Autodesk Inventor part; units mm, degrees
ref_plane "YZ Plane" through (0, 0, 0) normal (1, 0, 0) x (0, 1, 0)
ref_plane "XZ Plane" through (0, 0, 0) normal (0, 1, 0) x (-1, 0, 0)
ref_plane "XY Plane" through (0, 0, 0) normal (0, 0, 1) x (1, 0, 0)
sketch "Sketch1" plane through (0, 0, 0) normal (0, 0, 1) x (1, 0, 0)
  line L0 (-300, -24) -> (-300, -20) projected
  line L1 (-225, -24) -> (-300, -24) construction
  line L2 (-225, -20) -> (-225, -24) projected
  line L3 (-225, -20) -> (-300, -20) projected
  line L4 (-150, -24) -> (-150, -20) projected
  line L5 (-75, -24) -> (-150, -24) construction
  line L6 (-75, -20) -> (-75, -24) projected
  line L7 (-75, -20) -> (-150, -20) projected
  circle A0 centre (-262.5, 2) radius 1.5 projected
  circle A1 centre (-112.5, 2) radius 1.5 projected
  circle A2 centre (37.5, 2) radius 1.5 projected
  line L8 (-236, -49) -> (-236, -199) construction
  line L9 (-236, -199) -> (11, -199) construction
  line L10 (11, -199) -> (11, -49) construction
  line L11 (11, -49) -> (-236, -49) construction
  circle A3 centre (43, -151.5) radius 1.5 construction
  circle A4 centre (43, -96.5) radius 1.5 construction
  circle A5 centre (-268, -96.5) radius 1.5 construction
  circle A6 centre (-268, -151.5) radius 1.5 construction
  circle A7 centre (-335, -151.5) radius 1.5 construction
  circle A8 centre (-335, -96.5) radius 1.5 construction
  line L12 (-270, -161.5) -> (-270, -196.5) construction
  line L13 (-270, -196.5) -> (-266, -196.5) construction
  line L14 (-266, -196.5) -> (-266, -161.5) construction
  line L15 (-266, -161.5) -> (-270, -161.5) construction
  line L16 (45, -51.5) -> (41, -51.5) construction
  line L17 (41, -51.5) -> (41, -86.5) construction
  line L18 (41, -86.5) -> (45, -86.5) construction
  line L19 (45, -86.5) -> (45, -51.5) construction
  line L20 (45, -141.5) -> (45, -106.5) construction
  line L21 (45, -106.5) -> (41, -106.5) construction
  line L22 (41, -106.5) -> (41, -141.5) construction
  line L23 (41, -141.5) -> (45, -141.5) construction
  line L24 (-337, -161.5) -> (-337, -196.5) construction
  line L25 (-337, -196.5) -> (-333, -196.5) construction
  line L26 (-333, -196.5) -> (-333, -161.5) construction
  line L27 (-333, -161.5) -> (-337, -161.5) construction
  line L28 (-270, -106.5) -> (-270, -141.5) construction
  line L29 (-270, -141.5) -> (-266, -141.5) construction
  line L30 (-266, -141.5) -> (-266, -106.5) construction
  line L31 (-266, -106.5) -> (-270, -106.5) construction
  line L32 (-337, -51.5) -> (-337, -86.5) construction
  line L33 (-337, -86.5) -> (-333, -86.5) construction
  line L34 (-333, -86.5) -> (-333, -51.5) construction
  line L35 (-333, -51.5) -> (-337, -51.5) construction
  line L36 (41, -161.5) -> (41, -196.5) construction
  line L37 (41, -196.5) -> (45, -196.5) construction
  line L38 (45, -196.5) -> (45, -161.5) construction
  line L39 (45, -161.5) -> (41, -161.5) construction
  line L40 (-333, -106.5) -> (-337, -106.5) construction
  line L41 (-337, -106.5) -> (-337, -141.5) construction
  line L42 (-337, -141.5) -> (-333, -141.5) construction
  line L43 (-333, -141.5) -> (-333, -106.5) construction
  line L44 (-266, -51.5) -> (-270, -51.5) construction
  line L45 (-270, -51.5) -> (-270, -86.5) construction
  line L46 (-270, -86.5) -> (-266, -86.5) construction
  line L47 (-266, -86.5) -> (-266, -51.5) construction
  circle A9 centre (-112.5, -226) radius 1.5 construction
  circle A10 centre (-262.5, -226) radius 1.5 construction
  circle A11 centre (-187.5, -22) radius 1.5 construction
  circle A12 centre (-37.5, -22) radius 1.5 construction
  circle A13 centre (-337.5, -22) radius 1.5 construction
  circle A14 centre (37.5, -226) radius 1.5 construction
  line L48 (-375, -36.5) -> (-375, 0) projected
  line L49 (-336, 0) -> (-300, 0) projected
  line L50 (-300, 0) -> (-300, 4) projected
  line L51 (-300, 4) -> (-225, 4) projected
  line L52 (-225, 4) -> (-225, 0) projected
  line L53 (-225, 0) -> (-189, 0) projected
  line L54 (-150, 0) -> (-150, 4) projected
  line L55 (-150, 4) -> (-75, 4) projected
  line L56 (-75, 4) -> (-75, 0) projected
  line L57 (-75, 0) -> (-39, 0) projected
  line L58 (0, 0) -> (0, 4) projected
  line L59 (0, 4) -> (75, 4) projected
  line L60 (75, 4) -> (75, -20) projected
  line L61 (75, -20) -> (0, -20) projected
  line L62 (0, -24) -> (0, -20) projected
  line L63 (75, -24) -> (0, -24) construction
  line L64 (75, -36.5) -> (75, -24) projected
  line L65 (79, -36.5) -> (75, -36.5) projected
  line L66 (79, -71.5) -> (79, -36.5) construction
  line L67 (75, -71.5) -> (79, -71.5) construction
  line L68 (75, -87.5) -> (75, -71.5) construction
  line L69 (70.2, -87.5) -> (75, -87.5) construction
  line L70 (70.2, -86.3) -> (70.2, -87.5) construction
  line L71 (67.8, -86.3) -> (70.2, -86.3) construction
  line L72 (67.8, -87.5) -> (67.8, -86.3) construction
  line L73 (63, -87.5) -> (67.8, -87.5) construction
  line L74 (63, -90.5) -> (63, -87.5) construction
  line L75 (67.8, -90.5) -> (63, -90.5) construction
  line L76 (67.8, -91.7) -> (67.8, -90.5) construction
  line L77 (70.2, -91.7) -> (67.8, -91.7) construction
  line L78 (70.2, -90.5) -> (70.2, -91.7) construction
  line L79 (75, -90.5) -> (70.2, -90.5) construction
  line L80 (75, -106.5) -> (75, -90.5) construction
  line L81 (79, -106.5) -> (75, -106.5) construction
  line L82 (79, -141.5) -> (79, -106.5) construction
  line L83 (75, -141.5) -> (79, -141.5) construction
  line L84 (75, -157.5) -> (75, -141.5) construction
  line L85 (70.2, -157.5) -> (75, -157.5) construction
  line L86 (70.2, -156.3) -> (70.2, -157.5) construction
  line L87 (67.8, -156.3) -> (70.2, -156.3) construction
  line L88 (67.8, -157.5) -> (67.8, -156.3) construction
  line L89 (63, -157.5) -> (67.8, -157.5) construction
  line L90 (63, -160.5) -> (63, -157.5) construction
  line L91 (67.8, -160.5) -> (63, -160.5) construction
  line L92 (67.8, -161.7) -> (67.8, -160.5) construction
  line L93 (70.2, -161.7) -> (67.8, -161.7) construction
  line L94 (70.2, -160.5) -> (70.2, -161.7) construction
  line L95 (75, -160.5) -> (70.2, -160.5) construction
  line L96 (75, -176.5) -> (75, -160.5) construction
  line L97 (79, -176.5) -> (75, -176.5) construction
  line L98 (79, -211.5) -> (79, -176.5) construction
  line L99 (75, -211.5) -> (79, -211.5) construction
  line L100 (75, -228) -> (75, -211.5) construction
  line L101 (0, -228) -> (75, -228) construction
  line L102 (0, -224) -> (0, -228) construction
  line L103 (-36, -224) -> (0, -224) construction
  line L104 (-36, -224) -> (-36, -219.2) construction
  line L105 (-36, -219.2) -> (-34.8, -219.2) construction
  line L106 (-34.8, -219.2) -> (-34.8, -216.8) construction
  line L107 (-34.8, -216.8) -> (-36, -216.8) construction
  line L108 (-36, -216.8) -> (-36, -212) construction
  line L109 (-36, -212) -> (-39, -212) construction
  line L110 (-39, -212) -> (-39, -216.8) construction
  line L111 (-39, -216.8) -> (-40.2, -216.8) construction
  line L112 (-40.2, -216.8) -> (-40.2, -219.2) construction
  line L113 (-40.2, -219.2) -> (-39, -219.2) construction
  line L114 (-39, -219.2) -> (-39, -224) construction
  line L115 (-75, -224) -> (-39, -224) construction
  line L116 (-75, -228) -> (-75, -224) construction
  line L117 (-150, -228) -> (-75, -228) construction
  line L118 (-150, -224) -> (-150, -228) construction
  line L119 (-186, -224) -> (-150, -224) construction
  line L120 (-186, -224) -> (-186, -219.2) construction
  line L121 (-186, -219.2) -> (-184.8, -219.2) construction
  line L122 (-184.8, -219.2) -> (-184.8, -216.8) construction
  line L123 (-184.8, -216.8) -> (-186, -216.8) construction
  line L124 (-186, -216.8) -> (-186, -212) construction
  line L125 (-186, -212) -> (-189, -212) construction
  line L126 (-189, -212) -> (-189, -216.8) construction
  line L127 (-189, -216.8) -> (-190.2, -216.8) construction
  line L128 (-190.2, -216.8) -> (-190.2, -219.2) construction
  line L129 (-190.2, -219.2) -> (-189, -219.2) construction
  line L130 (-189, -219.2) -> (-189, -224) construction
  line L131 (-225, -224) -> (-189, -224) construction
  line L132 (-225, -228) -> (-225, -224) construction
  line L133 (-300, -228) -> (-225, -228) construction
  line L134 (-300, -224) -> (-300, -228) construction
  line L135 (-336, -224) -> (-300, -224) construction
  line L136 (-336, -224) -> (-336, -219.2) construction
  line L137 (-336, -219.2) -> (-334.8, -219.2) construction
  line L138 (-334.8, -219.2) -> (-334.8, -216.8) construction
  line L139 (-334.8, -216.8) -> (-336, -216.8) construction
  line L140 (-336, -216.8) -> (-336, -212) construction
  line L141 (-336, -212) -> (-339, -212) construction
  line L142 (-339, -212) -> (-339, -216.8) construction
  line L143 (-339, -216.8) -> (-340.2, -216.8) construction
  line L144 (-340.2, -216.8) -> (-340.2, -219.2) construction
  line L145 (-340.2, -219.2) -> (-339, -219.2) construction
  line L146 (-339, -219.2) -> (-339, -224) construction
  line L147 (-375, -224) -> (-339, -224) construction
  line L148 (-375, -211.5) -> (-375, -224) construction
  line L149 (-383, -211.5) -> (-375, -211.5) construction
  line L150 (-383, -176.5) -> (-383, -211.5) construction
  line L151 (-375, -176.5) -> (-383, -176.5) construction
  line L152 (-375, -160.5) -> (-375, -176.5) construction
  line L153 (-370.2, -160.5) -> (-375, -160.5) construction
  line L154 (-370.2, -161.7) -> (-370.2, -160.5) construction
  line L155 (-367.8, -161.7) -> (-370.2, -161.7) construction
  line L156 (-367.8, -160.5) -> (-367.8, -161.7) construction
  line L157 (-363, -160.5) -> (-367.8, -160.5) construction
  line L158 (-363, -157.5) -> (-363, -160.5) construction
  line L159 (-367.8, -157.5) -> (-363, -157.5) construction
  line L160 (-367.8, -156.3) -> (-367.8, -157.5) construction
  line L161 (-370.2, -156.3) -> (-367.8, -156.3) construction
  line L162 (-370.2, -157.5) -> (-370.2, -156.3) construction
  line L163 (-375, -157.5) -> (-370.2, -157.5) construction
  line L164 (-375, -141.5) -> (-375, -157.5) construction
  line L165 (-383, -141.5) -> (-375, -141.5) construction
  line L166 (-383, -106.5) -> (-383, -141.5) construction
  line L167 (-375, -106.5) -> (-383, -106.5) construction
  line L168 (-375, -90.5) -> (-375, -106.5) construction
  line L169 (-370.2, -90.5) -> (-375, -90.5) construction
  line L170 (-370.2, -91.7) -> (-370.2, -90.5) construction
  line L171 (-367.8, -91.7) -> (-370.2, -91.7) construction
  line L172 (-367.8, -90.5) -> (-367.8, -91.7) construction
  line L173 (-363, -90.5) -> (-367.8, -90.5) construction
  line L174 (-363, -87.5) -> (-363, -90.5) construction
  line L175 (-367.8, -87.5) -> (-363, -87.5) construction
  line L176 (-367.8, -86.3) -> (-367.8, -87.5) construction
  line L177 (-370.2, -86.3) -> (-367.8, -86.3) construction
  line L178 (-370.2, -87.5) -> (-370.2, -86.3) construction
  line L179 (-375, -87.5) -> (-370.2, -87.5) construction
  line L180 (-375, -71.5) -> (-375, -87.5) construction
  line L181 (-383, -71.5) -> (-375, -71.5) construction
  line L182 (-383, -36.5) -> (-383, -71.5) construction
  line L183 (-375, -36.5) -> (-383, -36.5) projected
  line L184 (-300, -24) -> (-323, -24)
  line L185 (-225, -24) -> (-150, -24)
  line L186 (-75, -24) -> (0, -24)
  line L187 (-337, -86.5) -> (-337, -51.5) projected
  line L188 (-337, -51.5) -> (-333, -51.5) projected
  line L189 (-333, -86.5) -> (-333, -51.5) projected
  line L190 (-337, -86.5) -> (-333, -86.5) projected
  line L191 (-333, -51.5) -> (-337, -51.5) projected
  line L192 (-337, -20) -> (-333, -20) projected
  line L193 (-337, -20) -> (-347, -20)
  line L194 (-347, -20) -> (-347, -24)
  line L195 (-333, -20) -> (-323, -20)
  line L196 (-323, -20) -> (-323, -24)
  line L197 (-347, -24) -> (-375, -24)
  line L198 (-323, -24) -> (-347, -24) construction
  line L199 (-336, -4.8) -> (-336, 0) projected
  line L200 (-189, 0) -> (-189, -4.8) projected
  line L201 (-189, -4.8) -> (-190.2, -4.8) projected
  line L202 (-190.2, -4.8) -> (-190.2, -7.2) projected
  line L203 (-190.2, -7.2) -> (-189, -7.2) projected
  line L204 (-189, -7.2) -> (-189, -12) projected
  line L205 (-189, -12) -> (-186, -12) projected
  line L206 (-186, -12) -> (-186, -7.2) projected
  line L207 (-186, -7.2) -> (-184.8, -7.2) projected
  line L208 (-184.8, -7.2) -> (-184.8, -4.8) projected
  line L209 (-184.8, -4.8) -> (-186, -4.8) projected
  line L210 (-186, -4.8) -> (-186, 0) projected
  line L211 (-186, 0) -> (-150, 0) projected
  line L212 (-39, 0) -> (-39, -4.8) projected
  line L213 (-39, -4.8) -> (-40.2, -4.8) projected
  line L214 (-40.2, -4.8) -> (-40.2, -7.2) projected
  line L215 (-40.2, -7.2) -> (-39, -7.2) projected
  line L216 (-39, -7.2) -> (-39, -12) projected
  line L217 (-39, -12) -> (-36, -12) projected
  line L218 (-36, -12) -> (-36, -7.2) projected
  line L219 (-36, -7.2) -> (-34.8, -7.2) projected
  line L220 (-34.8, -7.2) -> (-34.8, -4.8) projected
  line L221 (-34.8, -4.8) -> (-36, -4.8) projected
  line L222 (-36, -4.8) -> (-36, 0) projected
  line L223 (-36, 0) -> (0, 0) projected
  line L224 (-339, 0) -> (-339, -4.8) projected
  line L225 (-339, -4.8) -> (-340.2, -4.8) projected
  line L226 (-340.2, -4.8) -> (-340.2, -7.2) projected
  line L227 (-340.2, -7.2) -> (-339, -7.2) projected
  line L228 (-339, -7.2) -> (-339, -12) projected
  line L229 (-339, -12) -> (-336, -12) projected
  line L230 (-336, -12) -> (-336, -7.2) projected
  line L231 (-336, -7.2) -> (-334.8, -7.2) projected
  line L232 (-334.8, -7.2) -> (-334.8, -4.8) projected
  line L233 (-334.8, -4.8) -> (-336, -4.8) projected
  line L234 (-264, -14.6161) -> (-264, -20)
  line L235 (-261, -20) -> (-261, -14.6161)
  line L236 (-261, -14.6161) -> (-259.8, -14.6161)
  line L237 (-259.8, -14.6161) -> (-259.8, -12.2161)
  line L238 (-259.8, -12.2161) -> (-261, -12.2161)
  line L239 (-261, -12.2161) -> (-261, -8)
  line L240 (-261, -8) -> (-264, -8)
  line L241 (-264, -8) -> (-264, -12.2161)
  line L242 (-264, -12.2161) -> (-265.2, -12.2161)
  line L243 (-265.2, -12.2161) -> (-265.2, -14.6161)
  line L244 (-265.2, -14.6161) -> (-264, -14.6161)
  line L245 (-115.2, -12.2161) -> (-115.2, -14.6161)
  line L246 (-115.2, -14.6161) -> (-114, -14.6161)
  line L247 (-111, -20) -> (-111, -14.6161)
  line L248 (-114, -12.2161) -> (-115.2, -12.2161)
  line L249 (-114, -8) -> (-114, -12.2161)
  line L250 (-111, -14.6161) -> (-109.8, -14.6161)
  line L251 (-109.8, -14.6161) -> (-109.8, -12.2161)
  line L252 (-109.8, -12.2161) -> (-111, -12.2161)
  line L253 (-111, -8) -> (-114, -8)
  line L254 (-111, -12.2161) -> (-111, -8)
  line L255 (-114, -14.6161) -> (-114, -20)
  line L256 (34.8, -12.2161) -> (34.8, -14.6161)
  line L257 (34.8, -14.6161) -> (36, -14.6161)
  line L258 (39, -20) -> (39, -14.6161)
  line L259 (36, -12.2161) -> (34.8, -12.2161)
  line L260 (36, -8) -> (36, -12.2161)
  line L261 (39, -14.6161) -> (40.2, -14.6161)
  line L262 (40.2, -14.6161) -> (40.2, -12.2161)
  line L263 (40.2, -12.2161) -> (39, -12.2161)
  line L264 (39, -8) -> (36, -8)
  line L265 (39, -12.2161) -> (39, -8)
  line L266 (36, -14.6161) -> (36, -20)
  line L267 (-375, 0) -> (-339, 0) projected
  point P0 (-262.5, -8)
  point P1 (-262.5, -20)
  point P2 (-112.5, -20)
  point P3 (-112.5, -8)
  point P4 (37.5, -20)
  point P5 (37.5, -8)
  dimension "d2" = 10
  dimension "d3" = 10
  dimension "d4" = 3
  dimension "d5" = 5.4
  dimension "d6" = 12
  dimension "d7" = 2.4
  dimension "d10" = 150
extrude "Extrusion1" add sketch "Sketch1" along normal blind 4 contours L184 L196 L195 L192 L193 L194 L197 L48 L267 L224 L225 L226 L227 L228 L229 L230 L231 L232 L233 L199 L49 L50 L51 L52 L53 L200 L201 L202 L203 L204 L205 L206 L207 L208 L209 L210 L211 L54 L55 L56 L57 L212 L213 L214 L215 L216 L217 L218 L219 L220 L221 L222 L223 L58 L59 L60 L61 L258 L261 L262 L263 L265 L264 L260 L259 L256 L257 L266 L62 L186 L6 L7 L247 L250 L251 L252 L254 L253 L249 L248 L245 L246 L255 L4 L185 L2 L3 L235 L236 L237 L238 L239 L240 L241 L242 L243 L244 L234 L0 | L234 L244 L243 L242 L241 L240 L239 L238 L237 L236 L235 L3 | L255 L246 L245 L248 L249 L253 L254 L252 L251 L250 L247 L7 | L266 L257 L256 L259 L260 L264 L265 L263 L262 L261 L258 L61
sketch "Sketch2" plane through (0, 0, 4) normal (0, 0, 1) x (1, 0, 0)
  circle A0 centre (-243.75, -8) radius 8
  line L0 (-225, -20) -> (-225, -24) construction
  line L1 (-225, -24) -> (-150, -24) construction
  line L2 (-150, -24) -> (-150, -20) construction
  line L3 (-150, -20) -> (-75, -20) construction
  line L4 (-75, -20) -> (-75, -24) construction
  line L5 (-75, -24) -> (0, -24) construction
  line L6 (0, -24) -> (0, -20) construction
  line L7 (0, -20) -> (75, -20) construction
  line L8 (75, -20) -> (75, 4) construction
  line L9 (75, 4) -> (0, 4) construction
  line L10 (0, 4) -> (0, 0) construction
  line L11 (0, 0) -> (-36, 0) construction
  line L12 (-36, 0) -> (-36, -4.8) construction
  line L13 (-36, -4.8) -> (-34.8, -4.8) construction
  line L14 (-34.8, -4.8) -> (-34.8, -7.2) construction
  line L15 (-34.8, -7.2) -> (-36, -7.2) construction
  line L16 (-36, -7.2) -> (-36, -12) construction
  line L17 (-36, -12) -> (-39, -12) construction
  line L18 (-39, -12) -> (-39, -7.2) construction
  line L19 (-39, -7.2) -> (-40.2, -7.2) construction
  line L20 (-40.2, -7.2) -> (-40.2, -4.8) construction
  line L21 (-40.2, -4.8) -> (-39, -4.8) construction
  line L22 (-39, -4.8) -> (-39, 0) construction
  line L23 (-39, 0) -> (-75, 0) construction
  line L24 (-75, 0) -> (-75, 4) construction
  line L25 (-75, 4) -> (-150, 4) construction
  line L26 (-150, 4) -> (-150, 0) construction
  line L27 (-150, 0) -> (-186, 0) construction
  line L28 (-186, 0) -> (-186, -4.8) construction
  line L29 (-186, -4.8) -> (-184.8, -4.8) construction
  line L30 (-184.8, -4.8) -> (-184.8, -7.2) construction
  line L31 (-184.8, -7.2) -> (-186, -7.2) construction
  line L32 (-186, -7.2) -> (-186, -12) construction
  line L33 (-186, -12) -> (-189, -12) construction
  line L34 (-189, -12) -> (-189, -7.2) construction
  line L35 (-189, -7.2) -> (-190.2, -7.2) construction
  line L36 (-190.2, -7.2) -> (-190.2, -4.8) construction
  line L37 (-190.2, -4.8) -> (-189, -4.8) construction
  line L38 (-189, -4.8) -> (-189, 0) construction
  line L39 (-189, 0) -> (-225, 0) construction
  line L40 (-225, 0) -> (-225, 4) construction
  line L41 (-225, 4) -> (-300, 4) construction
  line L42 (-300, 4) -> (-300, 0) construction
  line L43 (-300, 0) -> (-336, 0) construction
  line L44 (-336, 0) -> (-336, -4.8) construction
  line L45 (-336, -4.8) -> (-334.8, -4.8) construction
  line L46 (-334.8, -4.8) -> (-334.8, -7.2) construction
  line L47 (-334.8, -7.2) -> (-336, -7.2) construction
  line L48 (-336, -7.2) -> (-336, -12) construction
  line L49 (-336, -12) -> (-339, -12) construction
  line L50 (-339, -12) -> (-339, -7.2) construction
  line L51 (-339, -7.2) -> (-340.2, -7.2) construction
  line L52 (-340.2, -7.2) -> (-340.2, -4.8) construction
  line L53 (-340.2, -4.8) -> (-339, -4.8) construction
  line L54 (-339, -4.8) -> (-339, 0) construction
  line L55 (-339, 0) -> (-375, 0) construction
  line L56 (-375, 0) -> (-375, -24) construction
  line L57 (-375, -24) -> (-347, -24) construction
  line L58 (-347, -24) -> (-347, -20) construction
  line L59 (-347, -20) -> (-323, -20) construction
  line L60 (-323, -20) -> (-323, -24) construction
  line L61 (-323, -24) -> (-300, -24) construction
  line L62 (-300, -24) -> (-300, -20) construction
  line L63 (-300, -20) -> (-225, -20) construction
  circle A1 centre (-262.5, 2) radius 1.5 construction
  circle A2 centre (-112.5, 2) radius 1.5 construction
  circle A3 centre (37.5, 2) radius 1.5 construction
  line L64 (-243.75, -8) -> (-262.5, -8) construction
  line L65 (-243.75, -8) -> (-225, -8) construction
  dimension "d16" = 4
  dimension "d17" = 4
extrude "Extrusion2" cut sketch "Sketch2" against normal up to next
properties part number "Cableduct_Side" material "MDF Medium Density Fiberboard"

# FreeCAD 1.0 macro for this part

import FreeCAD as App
import Part
import Sketcher

V = App.Vector
Q = App.Units.Quantity

doc = App.newDocument("Part")
body = doc.addObject("PartDesign::Body", "Body")

# Sketch on XY plane
sketch1 = body.newObject("Sketcher::SketchObject", "Sketch")
sketch1.AttachmentSupport = (doc.getObject("XY_Plane"), [""])
sketch1.MapMode = "FlatFace"
sketch1.addGeometry([
    Part.LineSegment(V(-323, -24, 0), V(-300, -24, 0)),  # 0
    Part.LineSegment(V(-300, -24, 0), V(-300, -20, 0)),  # 1
    Part.LineSegment(V(-300, -20, 0), V(-225, -20, 0)),  # 2
    Part.LineSegment(V(-225, -20, 0), V(-225, -24, 0)),  # 3
    Part.LineSegment(V(-225, -24, 0), V(-150, -24, 0)),  # 4
    Part.LineSegment(V(-150, -24, 0), V(-150, -20, 0)),  # 5
    Part.LineSegment(V(-150, -20, 0), V(-75, -20, 0)),  # 6
    Part.LineSegment(V(-75, -20, 0), V(-75, -24, 0)),  # 7
    Part.LineSegment(V(-75, -24, 0), V(0, -24, 0)),  # 8
    Part.LineSegment(V(0, -24, 0), V(0, -20, 0)),  # 9
    Part.LineSegment(V(0, -20, 0), V(75, -20, 0)),  # 10
    Part.LineSegment(V(75, -20, 0), V(75, 4, 0)),  # 11
    Part.LineSegment(V(75, 4, 0), V(0, 4, 0)),  # 12
    Part.LineSegment(V(0, 4, 0), V(0, 0, 0)),  # 13
    Part.LineSegment(V(0, 0, 0), V(-36, 0, 0)),  # 14
    Part.LineSegment(V(-36, 0, 0), V(-36, -4.8, 0)),  # 15
    Part.LineSegment(V(-36, -4.8, 0), V(-34.8, -4.8, 0)),  # 16
    Part.LineSegment(V(-34.8, -4.8, 0), V(-34.8, -7.2, 0)),  # 17
    Part.LineSegment(V(-34.8, -7.2, 0), V(-36, -7.2, 0)),  # 18
    Part.LineSegment(V(-36, -7.2, 0), V(-36, -12, 0)),  # 19
    Part.LineSegment(V(-36, -12, 0), V(-39, -12, 0)),  # 20
    Part.LineSegment(V(-39, -12, 0), V(-39, -7.2, 0)),  # 21
    Part.LineSegment(V(-39, -7.2, 0), V(-40.2, -7.2, 0)),  # 22
    Part.LineSegment(V(-40.2, -7.2, 0), V(-40.2, -4.8, 0)),  # 23
    Part.LineSegment(V(-40.2, -4.8, 0), V(-39, -4.8, 0)),  # 24
    Part.LineSegment(V(-39, -4.8, 0), V(-39, 0, 0)),  # 25
    Part.LineSegment(V(-39, 0, 0), V(-75, 0, 0)),  # 26
    Part.LineSegment(V(-75, 0, 0), V(-75, 4, 0)),  # 27
    Part.LineSegment(V(-75, 4, 0), V(-150, 4, 0)),  # 28
    Part.LineSegment(V(-150, 4, 0), V(-150, 0, 0)),  # 29
    Part.LineSegment(V(-150, 0, 0), V(-186, 0, 0)),  # 30
    Part.LineSegment(V(-186, 0, 0), V(-186, -4.8, 0)),  # 31
    Part.LineSegment(V(-186, -4.8, 0), V(-184.8, -4.8, 0)),  # 32
    Part.LineSegment(V(-184.8, -4.8, 0), V(-184.8, -7.2, 0)),  # 33
    Part.LineSegment(V(-184.8, -7.2, 0), V(-186, -7.2, 0)),  # 34
    Part.LineSegment(V(-186, -7.2, 0), V(-186, -12, 0)),  # 35
    Part.LineSegment(V(-186, -12, 0), V(-189, -12, 0)),  # 36
    Part.LineSegment(V(-189, -12, 0), V(-189, -7.2, 0)),  # 37
    Part.LineSegment(V(-189, -7.2, 0), V(-190.2, -7.2, 0)),  # 38
    Part.LineSegment(V(-190.2, -7.2, 0), V(-190.2, -4.8, 0)),  # 39
    Part.LineSegment(V(-190.2, -4.8, 0), V(-189, -4.8, 0)),  # 40
    Part.LineSegment(V(-189, -4.8, 0), V(-189, 0, 0)),  # 41
    Part.LineSegment(V(-189, 0, 0), V(-225, 0, 0)),  # 42
    Part.LineSegment(V(-225, 0, 0), V(-225, 4, 0)),  # 43
    Part.LineSegment(V(-225, 4, 0), V(-300, 4, 0)),  # 44
    Part.LineSegment(V(-300, 4, 0), V(-300, 0, 0)),  # 45
    Part.LineSegment(V(-300, 0, 0), V(-336, 0, 0)),  # 46
    Part.LineSegment(V(-336, 0, 0), V(-336, -4.8, 0)),  # 47
    Part.LineSegment(V(-336, -4.8, 0), V(-334.8, -4.8, 0)),  # 48
    Part.LineSegment(V(-334.8, -4.8, 0), V(-334.8, -7.2, 0)),  # 49
    Part.LineSegment(V(-334.8, -7.2, 0), V(-336, -7.2, 0)),  # 50
    Part.LineSegment(V(-336, -7.2, 0), V(-336, -12, 0)),  # 51
    Part.LineSegment(V(-336, -12, 0), V(-339, -12, 0)),  # 52
    Part.LineSegment(V(-339, -12, 0), V(-339, -7.2, 0)),  # 53
    Part.LineSegment(V(-339, -7.2, 0), V(-340.2, -7.2, 0)),  # 54
    Part.LineSegment(V(-340.2, -7.2, 0), V(-340.2, -4.8, 0)),  # 55
    Part.LineSegment(V(-340.2, -4.8, 0), V(-339, -4.8, 0)),  # 56
    Part.LineSegment(V(-339, -4.8, 0), V(-339, 0, 0)),  # 57
    Part.LineSegment(V(-339, 0, 0), V(-375, 0, 0)),  # 58
    Part.LineSegment(V(-375, 0, 0), V(-375, -24, 0)),  # 59
    Part.LineSegment(V(-375, -24, 0), V(-347, -24, 0)),  # 60
    Part.LineSegment(V(-347, -24, 0), V(-347, -20, 0)),  # 61
    Part.LineSegment(V(-347, -20, 0), V(-323, -20, 0)),  # 62
    Part.LineSegment(V(-323, -20, 0), V(-323, -24, 0)),  # 63
    Part.Circle(V(-262.5, 2, 0), V(0, 0, 1), 1.5),  # 64
    Part.Circle(V(-112.5, 2, 0), V(0, 0, 1), 1.5),  # 65
    Part.Circle(V(37.5, 2, 0), V(0, 0, 1), 1.5),  # 66
], False)
sketch1.addConstraint([
    Sketcher.Constraint("Coincident", 0, 2, 1, 1),
    Sketcher.Constraint("Coincident", 1, 2, 2, 1),
    Sketcher.Constraint("Coincident", 2, 2, 3, 1),
    Sketcher.Constraint("Coincident", 3, 2, 4, 1),
    Sketcher.Constraint("Coincident", 4, 2, 5, 1),
    Sketcher.Constraint("Coincident", 5, 2, 6, 1),
    Sketcher.Constraint("Coincident", 6, 2, 7, 1),
    Sketcher.Constraint("Coincident", 7, 2, 8, 1),
    Sketcher.Constraint("Coincident", 8, 2, 9, 1),
    Sketcher.Constraint("Coincident", 9, 2, 10, 1),
    Sketcher.Constraint("Coincident", 10, 2, 11, 1),
    Sketcher.Constraint("Coincident", 11, 2, 12, 1),
    Sketcher.Constraint("Coincident", 12, 2, 13, 1),
    Sketcher.Constraint("Coincident", 13, 2, 14, 1),
    Sketcher.Constraint("Coincident", 14, 2, 15, 1),
    Sketcher.Constraint("Coincident", 15, 2, 16, 1),
    Sketcher.Constraint("Coincident", 16, 2, 17, 1),
    Sketcher.Constraint("Coincident", 17, 2, 18, 1),
    Sketcher.Constraint("Coincident", 18, 2, 19, 1),
    Sketcher.Constraint("Coincident", 19, 2, 20, 1),
    Sketcher.Constraint("Coincident", 20, 2, 21, 1),
    Sketcher.Constraint("Coincident", 21, 2, 22, 1),
    Sketcher.Constraint("Coincident", 22, 2, 23, 1),
    Sketcher.Constraint("Coincident", 23, 2, 24, 1),
    Sketcher.Constraint("Coincident", 24, 2, 25, 1),
    Sketcher.Constraint("Coincident", 25, 2, 26, 1),
    Sketcher.Constraint("Coincident", 26, 2, 27, 1),
    Sketcher.Constraint("Coincident", 27, 2, 28, 1),
    Sketcher.Constraint("Coincident", 28, 2, 29, 1),
    Sketcher.Constraint("Coincident", 29, 2, 30, 1),
    Sketcher.Constraint("Coincident", 30, 2, 31, 1),
    Sketcher.Constraint("Coincident", 31, 2, 32, 1),
    Sketcher.Constraint("Coincident", 32, 2, 33, 1),
    Sketcher.Constraint("Coincident", 33, 2, 34, 1),
    Sketcher.Constraint("Coincident", 34, 2, 35, 1),
    Sketcher.Constraint("Coincident", 35, 2, 36, 1),
    Sketcher.Constraint("Coincident", 36, 2, 37, 1),
    Sketcher.Constraint("Coincident", 37, 2, 38, 1),
    Sketcher.Constraint("Coincident", 38, 2, 39, 1),
    Sketcher.Constraint("Coincident", 39, 2, 40, 1),
    Sketcher.Constraint("Coincident", 40, 2, 41, 1),
    Sketcher.Constraint("Coincident", 41, 2, 42, 1),
    Sketcher.Constraint("Coincident", 42, 2, 43, 1),
    Sketcher.Constraint("Coincident", 43, 2, 44, 1),
    Sketcher.Constraint("Coincident", 44, 2, 45, 1),
    Sketcher.Constraint("Coincident", 45, 2, 46, 1),
    Sketcher.Constraint("Coincident", 46, 2, 47, 1),
    Sketcher.Constraint("Coincident", 47, 2, 48, 1),
    Sketcher.Constraint("Coincident", 48, 2, 49, 1),
    Sketcher.Constraint("Coincident", 49, 2, 50, 1),
    Sketcher.Constraint("Coincident", 50, 2, 51, 1),
    Sketcher.Constraint("Coincident", 51, 2, 52, 1),
    Sketcher.Constraint("Coincident", 52, 2, 53, 1),
    Sketcher.Constraint("Coincident", 53, 2, 54, 1),
    Sketcher.Constraint("Coincident", 54, 2, 55, 1),
    Sketcher.Constraint("Coincident", 55, 2, 56, 1),
    Sketcher.Constraint("Coincident", 56, 2, 57, 1),
    Sketcher.Constraint("Coincident", 57, 2, 58, 1),
    Sketcher.Constraint("Coincident", 58, 2, 59, 1),
    Sketcher.Constraint("Coincident", 59, 2, 60, 1),
    Sketcher.Constraint("Coincident", 60, 2, 61, 1),
    Sketcher.Constraint("Coincident", 61, 2, 62, 1),
    Sketcher.Constraint("Coincident", 62, 2, 63, 1),
    Sketcher.Constraint("Coincident", 63, 2, 0, 1),
    Sketcher.Constraint("Horizontal", 0),
    Sketcher.Constraint("Vertical", 1),
    Sketcher.Constraint("Horizontal", 2),
    Sketcher.Constraint("Vertical", 3),
    Sketcher.Constraint("Horizontal", 4),
    Sketcher.Constraint("Vertical", 5),
    Sketcher.Constraint("Horizontal", 6),
    Sketcher.Constraint("Vertical", 7),
    Sketcher.Constraint("Horizontal", 8),
    Sketcher.Constraint("Vertical", 9),
    Sketcher.Constraint("Horizontal", 10),
    Sketcher.Constraint("Vertical", 11),
    Sketcher.Constraint("Horizontal", 12),
    Sketcher.Constraint("Vertical", 13),
    Sketcher.Constraint("Horizontal", 14),
    Sketcher.Constraint("Vertical", 15),
    Sketcher.Constraint("Horizontal", 16),
    Sketcher.Constraint("Vertical", 17),
    Sketcher.Constraint("Horizontal", 18),
    Sketcher.Constraint("Vertical", 19),
    Sketcher.Constraint("Horizontal", 20),
    Sketcher.Constraint("Vertical", 21),
    Sketcher.Constraint("Horizontal", 22),
    Sketcher.Constraint("Vertical", 23),
    Sketcher.Constraint("Horizontal", 24),
    Sketcher.Constraint("Vertical", 25),
    Sketcher.Constraint("Horizontal", 26),
    Sketcher.Constraint("Vertical", 27),
    Sketcher.Constraint("Horizontal", 28),
    Sketcher.Constraint("Vertical", 29),
    Sketcher.Constraint("Horizontal", 30),
    Sketcher.Constraint("Vertical", 31),
    Sketcher.Constraint("Horizontal", 32),
    Sketcher.Constraint("Vertical", 33),
    Sketcher.Constraint("Horizontal", 34),
    Sketcher.Constraint("Vertical", 35),
    Sketcher.Constraint("Horizontal", 36),
    Sketcher.Constraint("Vertical", 37),
    Sketcher.Constraint("Horizontal", 38),
    Sketcher.Constraint("Vertical", 39),
    Sketcher.Constraint("Horizontal", 40),
    Sketcher.Constraint("Vertical", 41),
    Sketcher.Constraint("Horizontal", 42),
    Sketcher.Constraint("Vertical", 43),
    Sketcher.Constraint("Horizontal", 44),
    Sketcher.Constraint("Vertical", 45),
    Sketcher.Constraint("Horizontal", 46),
    Sketcher.Constraint("Vertical", 47),
    Sketcher.Constraint("Horizontal", 48),
    Sketcher.Constraint("Vertical", 49),
    Sketcher.Constraint("Horizontal", 50),
    Sketcher.Constraint("Vertical", 51),
    Sketcher.Constraint("Horizontal", 52),
    Sketcher.Constraint("Vertical", 53),
    Sketcher.Constraint("Horizontal", 54),
    Sketcher.Constraint("Vertical", 55),
    Sketcher.Constraint("Horizontal", 56),
    Sketcher.Constraint("Vertical", 57),
    Sketcher.Constraint("Horizontal", 58),
    Sketcher.Constraint("Vertical", 59),
    Sketcher.Constraint("Horizontal", 60),
    Sketcher.Constraint("Vertical", 61),
    Sketcher.Constraint("Horizontal", 62),
    Sketcher.Constraint("Vertical", 63),
    Sketcher.Constraint("Coincident", 13, 2, -1, 1),
    Sketcher.Constraint("Equal", 64, 65),
    Sketcher.Constraint("Equal", 65, 66),
    Sketcher.Constraint("Symmetric", 6, 2, 10, 2, -2),
    Sketcher.Constraint("Symmetric", 11, 2, 27, 2, -2),
    Sketcher.Constraint("PointOnObject", 8, 2, -2),
    Sketcher.Constraint("PointOnObject", 25, 2, -1),
    Sketcher.Constraint("PointOnObject", 29, 2, -1),
    Sketcher.Constraint("PointOnObject", 41, 2, -1),
    Sketcher.Constraint("PointOnObject", 45, 2, -1),
    Sketcher.Constraint("PointOnObject", 57, 2, -1),
    Sketcher.Constraint("Horizontal", 64, 3, 65, 3),
    Sketcher.Constraint("Horizontal", 65, 3, 66, 3),
    Sketcher.Constraint("Horizontal", 0, 2, 3, 2),
    Sketcher.Constraint("Horizontal", 2, 2, 5, 2),
    Sketcher.Constraint("Horizontal", 4, 2, 7, 2),
    Sketcher.Constraint("Horizontal", 18, 2, 21, 2),
    Sketcher.Constraint("Horizontal", 16, 2, 23, 2),
    Sketcher.Constraint("Horizontal", 24, 2, 31, 2),
    Sketcher.Constraint("Horizontal", 22, 2, 33, 2),
    Sketcher.Constraint("Horizontal", 20, 2, 35, 2),
    Sketcher.Constraint("Horizontal", 34, 2, 37, 2),
    Sketcher.Constraint("Horizontal", 32, 2, 39, 2),
    Sketcher.Constraint("Horizontal", 28, 2, 43, 2),
    Sketcher.Constraint("Horizontal", 40, 2, 47, 2),
    Sketcher.Constraint("Horizontal", 38, 2, 49, 2),
    Sketcher.Constraint("Horizontal", 36, 2, 51, 2),
    Sketcher.Constraint("Horizontal", 50, 2, 53, 2),
    Sketcher.Constraint("Horizontal", 48, 2, 55, 2),
    Sketcher.Constraint("Horizontal", 8, 2, 59, 2),
    Sketcher.Constraint("Horizontal", 10, 2, 61, 2),
    Sketcher.Constraint("Vertical", 15, 2, 18, 2),
    Sketcher.Constraint("Vertical", 21, 2, 24, 2),
    Sketcher.Constraint("Vertical", 5, 2, 28, 2),
    Sketcher.Constraint("Vertical", 31, 2, 34, 2),
    Sketcher.Constraint("Vertical", 37, 2, 40, 2),
    Sketcher.Constraint("Vertical", 3, 2, 42, 2),
    Sketcher.Constraint("Vertical", 1, 2, 44, 2),
    Sketcher.Constraint("Vertical", 47, 2, 50, 2),
    Sketcher.Constraint("Vertical", 53, 2, 56, 2),
    Sketcher.Constraint("Equal", 2, 4),
    Sketcher.Constraint("Equal", 4, 6),
    Sketcher.Constraint("Equal", 6, 8),
    Sketcher.Constraint("Equal", 18, 22),
    Sketcher.Constraint("Equal", 14, 26),
    Sketcher.Constraint("Equal", 26, 30),
    Sketcher.Constraint("Equal", 24, 32),
    Sketcher.Constraint("Equal", 20, 36),
    Sketcher.Constraint("Equal", 34, 38),
    Sketcher.Constraint("Equal", 42, 46),
    Sketcher.Constraint("Equal", 40, 48),
    Sketcher.Constraint("Equal", 36, 52),
    Sketcher.Constraint("Equal", 50, 54),
    Sketcher.Constraint("Equal", 46, 58),
    Sketcher.Constraint("Equal", 62, 11),
    Sketcher.Constraint("Equal", 9, 13),
    Sketcher.Constraint("Equal", 15, 19),
    Sketcher.Constraint("Diameter", 64, Q("3 mm")),
    Sketcher.Constraint("DistanceX", 20, 2, 20, 1, Q("3 mm")),
    Sketcher.Constraint("DistanceY", 17, 2, 17, 1, Q("2.4 mm")),
    Sketcher.Constraint("DistanceX", 4, 2, -1, 1, Q("150 mm")),
    Sketcher.Constraint("DistanceY", 19, 2, -1, 1, Q("12 mm")),
    Sketcher.Constraint("DistanceX", 0, 1, 0, 2, Q("23 mm")),
    Sketcher.Constraint("DistanceX", 60, 1, 60, 2, Q("28 mm")),
    Sketcher.Constraint("DistanceY", 1, 1, 1, 2, Q("4 mm")),
    Sketcher.Constraint("DistanceX", 16, 1, 16, 2, Q("1.2 mm")),
    Sketcher.Constraint("DistanceY", -1, 1, 64, 3, Q("2 mm")),
    Sketcher.Constraint("DistanceX", 64, 3, -1, 1, Q("262.5 mm")),
    Sketcher.Constraint("DistanceX", 65, 3, -1, 1, Q("112.5 mm")),
    Sketcher.Constraint("DistanceX", -1, 1, 66, 3, Q("37.5 mm")),
])
pad1 = body.newObject("PartDesign::Pad", "Pad")
pad1.Profile = sketch1
pad1.Length = 4

# Sketch on XY plane
sketch2 = body.newObject("Sketcher::SketchObject", "Sketch001")
sketch2.AttachmentSupport = (doc.getObject("XY_Plane"), [""])
sketch2.MapMode = "FlatFace"
sketch2.AttachmentOffset = App.Placement(V(0, 0, 4), App.Rotation())
sketch2.addGeometry(Part.Circle(V(-244, -8, 0), V(0, 0, 1), 8), False)
sketch2.addConstraint([
    Sketcher.Constraint("Diameter", 0, Q("16 mm")),
    Sketcher.Constraint("DistanceY", 0, 3, -1, 1, Q("8 mm")),
    Sketcher.Constraint("DistanceX", 0, 3, -1, 1, Q("243.75 mm")),
])
pocket1 = body.newObject("PartDesign::Pocket", "Pocket")
pocket1.Profile = sketch2
pocket1.Type = "UpToFirst"

doc.recompute()
